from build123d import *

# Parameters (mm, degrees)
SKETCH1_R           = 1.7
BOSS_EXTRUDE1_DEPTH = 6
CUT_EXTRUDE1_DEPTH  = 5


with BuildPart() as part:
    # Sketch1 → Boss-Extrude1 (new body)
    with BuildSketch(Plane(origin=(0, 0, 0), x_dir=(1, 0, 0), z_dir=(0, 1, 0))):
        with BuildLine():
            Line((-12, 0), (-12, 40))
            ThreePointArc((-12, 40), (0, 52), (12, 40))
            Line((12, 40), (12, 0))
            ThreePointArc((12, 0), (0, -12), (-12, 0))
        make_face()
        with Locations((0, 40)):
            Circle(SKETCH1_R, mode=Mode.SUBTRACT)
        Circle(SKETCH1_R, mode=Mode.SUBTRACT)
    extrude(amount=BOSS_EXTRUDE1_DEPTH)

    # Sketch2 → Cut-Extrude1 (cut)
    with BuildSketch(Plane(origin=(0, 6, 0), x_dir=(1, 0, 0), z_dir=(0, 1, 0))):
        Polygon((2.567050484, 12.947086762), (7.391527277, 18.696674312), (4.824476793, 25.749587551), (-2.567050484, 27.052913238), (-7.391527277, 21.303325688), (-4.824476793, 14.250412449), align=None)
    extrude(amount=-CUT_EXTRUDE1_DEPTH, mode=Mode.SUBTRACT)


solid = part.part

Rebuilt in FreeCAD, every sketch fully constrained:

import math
import FreeCAD as App
import Part
import Sketcher

V = App.Vector
Q = App.Units.Quantity


def add_polygon(sketch, points):
    """Adds a closed chain of lines whose ends are joined by coincident constraints."""
    first, n = sketch.GeometryCount, len(points)
    for a, b in zip(points, points[1:] + points[:1]):
        sketch.addGeometry(Part.LineSegment(App.Vector(*a, 0), App.Vector(*b, 0)), False)
    for i in range(n):
        sketch.addConstraint(Sketcher.Constraint("Coincident", first + i, 2, first + (i + 1) % n, 1))

doc = App.newDocument("Part")
body = doc.addObject("PartDesign::Body", "Body")

sketch1 = body.newObject("Sketcher::SketchObject", "Sketch")
sketch1.AttachmentSupport = (doc.getObject("XZ_Plane"), [""])
sketch1.MapMode = "FlatFace"
sketch1.addGeometry(Part.LineSegment(V(-12, -40, 0), V(-12, 0, 0)), False)
sketch1.addGeometry(Part.ArcOfCircle(Part.Circle(V(0, 0, 0), V(0, 0, 1), 12), math.radians(0), math.radians(180)), False)
sketch1.addGeometry(Part.LineSegment(V(12, 0, 0), V(12, -40, 0)), False)
sketch1.addGeometry(Part.ArcOfCircle(Part.Circle(V(0, -40, 0), V(0, 0, 1), 12), math.radians(180), math.radians(360)), False)
sketch1.addGeometry(Part.Circle(V(0, 0, 0), V(0, 0, 1), 1.7), False)
sketch1.addGeometry(Part.Circle(V(0, -40, 0), V(0, 0, 1), 1.7), False)
sketch1.addConstraint(Sketcher.Constraint("Tangent", 0, 2, 1, 2))
sketch1.addConstraint(Sketcher.Constraint("Tangent", 1, 1, 2, 1))
sketch1.addConstraint(Sketcher.Constraint("Tangent", 2, 2, 3, 2))
sketch1.addConstraint(Sketcher.Constraint("Tangent", 3, 1, 0, 1))
sketch1.addConstraint(Sketcher.Constraint("Vertical", 0))
sketch1.addConstraint(Sketcher.Constraint("Vertical", 2))
sketch1.addConstraint(Sketcher.Constraint("Coincident", 1, 3, -1, 1))
sketch1.addConstraint(Sketcher.Constraint("Coincident", 4, 3, -1, 1))
sketch1.addConstraint(Sketcher.Constraint("Coincident", 5, 3, 3, 3))
sketch1.addConstraint(Sketcher.Constraint("Equal", 4, 5))
sketch1.addConstraint(Sketcher.Constraint("Radius", 1, 12.0))
sketch1.addConstraint(Sketcher.Constraint("Diameter", 4, 3.4))
sketch1.addConstraint(Sketcher.Constraint("DistanceY", 0, 1, 0, 2, 40.0))
pad1 = body.newObject("PartDesign::Pad", "Pad")
pad1.Profile = sketch1
pad1.Length = 6
pad1.Reversed = True

sketch2 = body.newObject("Sketcher::SketchObject", "Sketch001")
sketch2.AttachmentSupport = (doc.getObject("XZ_Plane"), [""])
sketch2.MapMode = "FlatFace"
sketch2.AttachmentOffset = App.Placement(V(0, 0, -6), App.Rotation())
add_polygon(sketch2, [(3, -13), (7, -19), (5, -26), (-3, -27), (-7, -21), (-5, -14)])
sketch2.addConstraint(Sketcher.Constraint("Parallel", 0, 3))
sketch2.addConstraint(Sketcher.Constraint("Parallel", 1, 4))
sketch2.addConstraint(Sketcher.Constraint("Parallel", 2, 5))
sketch2.addConstraint(Sketcher.Constraint("Equal", 0, 1))
sketch2.addConstraint(Sketcher.Constraint("Equal", 1, 2))
sketch2.addConstraint(Sketcher.Constraint("Equal", 2, 3))
sketch2.addConstraint(Sketcher.Constraint("Angle", 0, Q("-50 deg")))
sketch2.addConstraint(Sketcher.Constraint("Angle", 1, Q("-110 deg")))
sketch2.addConstraint(Sketcher.Constraint("Angle", 2, Q("-170 deg")))
sketch2.addConstraint(Sketcher.Constraint("DistanceY", 2, 2, 4, 2, 12.802501))
sketch2.addConstraint(Sketcher.Constraint("DistanceX", 2, 2, -1, 1, 2.56705))
sketch2.addConstraint(Sketcher.Constraint("DistanceY", 0, 2, -1, 1, 18.696674))
pocket1 = body.newObject("PartDesign::Pocket", "Pocket")
pocket1.Profile = sketch2
pocket1.Length = 5
pocket1.Reversed = True

doc.recompute()
